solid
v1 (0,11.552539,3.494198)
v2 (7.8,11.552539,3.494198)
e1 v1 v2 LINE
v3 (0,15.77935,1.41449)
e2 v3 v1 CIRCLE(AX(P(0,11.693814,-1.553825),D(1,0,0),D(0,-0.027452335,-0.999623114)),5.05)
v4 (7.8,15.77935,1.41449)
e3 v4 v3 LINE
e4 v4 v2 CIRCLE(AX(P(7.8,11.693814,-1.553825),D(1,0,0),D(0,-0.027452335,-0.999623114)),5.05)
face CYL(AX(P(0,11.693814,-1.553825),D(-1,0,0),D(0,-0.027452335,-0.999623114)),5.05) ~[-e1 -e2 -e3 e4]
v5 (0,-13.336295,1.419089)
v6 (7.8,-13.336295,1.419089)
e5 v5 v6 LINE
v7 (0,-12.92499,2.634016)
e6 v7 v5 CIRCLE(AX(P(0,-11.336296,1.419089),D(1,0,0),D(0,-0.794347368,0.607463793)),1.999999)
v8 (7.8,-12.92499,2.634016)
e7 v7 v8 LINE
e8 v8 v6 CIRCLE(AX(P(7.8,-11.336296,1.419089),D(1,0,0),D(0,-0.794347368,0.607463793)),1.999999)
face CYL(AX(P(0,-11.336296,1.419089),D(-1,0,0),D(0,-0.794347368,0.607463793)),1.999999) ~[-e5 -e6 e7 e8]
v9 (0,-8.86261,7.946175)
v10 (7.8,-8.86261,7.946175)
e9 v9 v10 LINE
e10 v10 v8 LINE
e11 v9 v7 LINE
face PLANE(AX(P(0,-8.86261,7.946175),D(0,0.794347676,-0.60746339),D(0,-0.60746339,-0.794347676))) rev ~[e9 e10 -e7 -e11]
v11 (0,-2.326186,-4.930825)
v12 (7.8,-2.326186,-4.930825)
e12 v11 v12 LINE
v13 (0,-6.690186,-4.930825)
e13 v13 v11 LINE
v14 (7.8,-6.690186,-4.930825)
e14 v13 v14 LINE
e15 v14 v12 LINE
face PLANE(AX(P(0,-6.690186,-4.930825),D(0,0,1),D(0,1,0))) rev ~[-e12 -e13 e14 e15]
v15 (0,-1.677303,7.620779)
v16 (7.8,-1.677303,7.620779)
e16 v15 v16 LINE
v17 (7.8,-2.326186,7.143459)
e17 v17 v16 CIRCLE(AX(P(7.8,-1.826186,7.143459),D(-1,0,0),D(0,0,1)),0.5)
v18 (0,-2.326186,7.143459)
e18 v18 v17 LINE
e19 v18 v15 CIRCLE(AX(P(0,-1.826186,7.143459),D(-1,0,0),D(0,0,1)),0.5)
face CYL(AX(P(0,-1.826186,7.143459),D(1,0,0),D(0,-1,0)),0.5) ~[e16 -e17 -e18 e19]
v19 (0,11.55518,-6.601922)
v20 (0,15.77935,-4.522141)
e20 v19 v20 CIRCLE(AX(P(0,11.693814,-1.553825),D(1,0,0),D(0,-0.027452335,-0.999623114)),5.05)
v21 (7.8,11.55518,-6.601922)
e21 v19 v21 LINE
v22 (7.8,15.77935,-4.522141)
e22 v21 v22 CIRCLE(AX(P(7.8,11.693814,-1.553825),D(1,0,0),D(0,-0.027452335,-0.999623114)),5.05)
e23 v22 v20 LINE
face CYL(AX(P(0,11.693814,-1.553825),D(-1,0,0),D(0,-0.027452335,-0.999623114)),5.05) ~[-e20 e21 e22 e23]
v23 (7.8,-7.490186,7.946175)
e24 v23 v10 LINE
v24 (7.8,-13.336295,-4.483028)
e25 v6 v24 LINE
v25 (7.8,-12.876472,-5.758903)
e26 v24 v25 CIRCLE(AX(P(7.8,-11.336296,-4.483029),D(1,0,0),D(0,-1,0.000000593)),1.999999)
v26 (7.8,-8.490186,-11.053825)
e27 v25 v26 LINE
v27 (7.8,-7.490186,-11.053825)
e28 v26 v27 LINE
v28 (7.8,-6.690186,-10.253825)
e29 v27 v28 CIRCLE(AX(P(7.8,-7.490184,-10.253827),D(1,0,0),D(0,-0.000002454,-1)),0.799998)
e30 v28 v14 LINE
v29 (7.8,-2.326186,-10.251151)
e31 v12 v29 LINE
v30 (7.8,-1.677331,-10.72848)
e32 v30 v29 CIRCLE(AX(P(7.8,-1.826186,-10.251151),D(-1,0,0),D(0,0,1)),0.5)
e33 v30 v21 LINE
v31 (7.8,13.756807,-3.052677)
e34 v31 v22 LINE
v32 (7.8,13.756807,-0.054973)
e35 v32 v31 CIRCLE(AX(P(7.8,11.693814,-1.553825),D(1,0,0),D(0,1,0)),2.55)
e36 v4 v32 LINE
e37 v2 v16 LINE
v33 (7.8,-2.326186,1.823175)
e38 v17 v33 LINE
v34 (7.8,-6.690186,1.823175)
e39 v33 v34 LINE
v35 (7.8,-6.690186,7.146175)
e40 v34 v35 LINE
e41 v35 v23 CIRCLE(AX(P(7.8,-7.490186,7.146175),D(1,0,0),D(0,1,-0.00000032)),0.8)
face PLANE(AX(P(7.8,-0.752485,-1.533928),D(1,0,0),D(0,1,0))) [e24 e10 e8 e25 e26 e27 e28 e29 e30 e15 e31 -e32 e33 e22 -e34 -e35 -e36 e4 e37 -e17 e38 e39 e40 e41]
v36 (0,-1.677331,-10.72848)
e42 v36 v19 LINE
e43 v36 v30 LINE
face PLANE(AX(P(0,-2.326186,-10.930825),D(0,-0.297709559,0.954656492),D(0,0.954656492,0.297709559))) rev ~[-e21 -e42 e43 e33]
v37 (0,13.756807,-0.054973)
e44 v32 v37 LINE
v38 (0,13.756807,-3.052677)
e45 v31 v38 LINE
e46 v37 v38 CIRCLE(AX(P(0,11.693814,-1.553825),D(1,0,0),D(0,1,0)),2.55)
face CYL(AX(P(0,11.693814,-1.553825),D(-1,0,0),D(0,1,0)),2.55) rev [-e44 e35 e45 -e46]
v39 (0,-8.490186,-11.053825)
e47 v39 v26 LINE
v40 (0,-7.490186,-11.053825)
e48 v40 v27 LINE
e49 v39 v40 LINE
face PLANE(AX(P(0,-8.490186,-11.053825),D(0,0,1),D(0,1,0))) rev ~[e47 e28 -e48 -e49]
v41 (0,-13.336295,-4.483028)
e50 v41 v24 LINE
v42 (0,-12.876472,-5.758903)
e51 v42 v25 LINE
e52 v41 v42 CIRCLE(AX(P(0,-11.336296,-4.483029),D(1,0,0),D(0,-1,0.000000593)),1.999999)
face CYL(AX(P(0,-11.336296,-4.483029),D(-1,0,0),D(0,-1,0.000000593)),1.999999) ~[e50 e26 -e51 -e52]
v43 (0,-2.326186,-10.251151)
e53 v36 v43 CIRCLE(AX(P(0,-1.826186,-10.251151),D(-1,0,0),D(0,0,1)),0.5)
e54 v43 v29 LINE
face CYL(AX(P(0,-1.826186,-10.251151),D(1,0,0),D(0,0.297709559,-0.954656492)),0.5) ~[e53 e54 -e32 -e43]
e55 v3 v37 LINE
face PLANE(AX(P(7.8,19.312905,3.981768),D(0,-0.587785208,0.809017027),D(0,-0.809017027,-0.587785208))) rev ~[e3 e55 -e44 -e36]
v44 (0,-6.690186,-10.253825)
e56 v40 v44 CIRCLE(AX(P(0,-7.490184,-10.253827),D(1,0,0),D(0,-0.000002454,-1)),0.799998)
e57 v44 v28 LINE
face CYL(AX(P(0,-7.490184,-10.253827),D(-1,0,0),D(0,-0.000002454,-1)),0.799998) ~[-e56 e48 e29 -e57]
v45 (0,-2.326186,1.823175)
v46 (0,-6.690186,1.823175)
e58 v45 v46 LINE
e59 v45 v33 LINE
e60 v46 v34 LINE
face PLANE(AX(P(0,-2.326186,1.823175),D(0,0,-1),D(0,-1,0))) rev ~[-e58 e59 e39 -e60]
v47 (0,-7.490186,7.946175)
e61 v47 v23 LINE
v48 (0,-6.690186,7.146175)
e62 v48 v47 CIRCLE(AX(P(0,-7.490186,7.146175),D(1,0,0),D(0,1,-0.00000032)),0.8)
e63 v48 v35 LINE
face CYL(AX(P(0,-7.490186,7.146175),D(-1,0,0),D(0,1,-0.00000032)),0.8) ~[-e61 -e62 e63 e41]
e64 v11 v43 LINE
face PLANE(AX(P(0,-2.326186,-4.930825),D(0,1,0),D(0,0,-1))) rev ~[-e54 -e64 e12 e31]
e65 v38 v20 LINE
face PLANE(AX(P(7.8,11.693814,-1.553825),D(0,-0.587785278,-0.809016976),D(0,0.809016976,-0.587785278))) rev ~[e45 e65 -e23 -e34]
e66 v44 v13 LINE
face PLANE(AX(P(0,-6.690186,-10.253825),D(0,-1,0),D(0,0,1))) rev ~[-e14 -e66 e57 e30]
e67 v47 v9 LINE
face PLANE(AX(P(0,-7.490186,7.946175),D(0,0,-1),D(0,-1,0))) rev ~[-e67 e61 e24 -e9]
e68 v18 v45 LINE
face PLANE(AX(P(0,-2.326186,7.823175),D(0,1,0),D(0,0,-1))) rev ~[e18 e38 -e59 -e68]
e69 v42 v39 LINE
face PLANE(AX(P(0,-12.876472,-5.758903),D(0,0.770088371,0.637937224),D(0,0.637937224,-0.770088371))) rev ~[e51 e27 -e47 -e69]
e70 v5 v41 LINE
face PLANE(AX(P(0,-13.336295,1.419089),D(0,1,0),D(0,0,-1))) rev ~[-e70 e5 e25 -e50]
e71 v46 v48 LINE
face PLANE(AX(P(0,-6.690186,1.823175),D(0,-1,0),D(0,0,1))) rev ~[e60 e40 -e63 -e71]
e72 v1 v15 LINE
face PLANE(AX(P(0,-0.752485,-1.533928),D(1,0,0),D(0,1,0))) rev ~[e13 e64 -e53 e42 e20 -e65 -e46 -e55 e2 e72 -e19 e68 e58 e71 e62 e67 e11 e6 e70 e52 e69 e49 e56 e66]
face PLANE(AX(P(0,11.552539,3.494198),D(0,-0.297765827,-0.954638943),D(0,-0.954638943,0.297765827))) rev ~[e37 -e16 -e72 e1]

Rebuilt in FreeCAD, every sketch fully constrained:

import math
import FreeCAD as App
import Part
import Sketcher
from FreeCAD import Vector
Q = App.Units.Quantity


def edges_at(feature, points):
    """Names of the edges that pass closest to the given points."""
    edges = feature.Shape.Edges
    near = lambda p: min(range(len(edges)), key=lambda i: edges[i].distToShape(Part.Vertex(*p))[0])
    return sorted({f"Edge{near(p) + 1}" for p in points})

doc = App.newDocument("Part")
params = doc.addObject("Spreadsheet::Sheet", "Params")
for row, (alias, value) in enumerate([
    ("sketch1_radius", "1.999999 mm"),
    ("sketch1_diameter", "5.1 mm"),
    ("sketch1_radius2", "0.8 mm"),
    ("sketch1_width", "1 mm"),
    ("sketch1_height", "6 mm"),
    ("pad1_length", "7.8 mm"),
    ("fillet_radius", "0.5 mm"),
    ("pocket1_length", "25 mm"),
], start=1):
    params.set(f"A{row}", alias)
    params.set(f"B{row}", "=" + value)
    params.setAlias(f"B{row}", alias)

body = doc.addObject("PartDesign::Body", "Body")

# Sketch on YZ plane
sketch1 = body.newObject("Sketcher::SketchObject", "Sketch")
sketch1.AttachmentSupport = (doc.getObject("YZ_Plane"), [""])
sketch1.MapMode = "FlatFace"
sketch1.addGeometry(Part.LineSegment(Vector(-2.326186, 7.823175, 0), Vector(-2.326186, 1.823175, 0)), False)
sketch1.addGeometry(Part.LineSegment(Vector(-2.326186, 1.823175, 0), Vector(-6.690186, 1.823175, 0)), False)
sketch1.addGeometry(Part.LineSegment(Vector(-6.690186, 1.823175, 0), Vector(-6.690186, 7.146175, 0)), False)
sketch1.addGeometry(Part.ArcOfCircle(Part.Circle(Vector(-7.490186, 7.146175, 0), Vector(0, 0, 1), 0.8), math.radians(-0.000018), math.radians(90.000018)), False)
sketch1.addGeometry(Part.LineSegment(Vector(-7.490186, 7.946175, 0), Vector(-8.86261, 7.946175, 0)), False)
sketch1.addGeometry(Part.LineSegment(Vector(-8.86261, 7.946175, 0), Vector(-12.92499, 2.634016, 0)), False)
sketch1.addGeometry(Part.ArcOfCircle(Part.Circle(Vector(-11.336296, 1.419089, 0), Vector(0, 0, 1), 1.999999), math.radians(142.593656), math.radians(180.000006)), False)
sketch1.addGeometry(Part.LineSegment(Vector(-13.336295, 1.419089, 0), Vector(-13.336295, -4.483028, 0)), False)
sketch1.addGeometry(Part.ArcOfCircle(Part.Circle(Vector(-11.336296, -4.483029, 0), Vector(0, 0, 1), 1.999999), math.radians(179.999966), math.radians(219.638172)), False)
sketch1.addGeometry(Part.LineSegment(Vector(-12.876472, -5.758903, 0), Vector(-8.490186, -11.053825, 0)), False)
sketch1.addGeometry(Part.LineSegment(Vector(-8.490186, -11.053825, 0), Vector(-7.490186, -11.053825, 0)), False)
sketch1.addGeometry(Part.ArcOfCircle(Part.Circle(Vector(-7.490184, -10.253827, 0), Vector(0, 0, 1), 0.799998), math.radians(-90.000141), math.radians(0.000141)), False)
sketch1.addGeometry(Part.LineSegment(Vector(-6.690186, -10.253825, 0), Vector(-6.690186, -4.930825, 0)), False)
sketch1.addGeometry(Part.LineSegment(Vector(-6.690186, -4.930825, 0), Vector(-2.326186, -4.930825, 0)), False)
sketch1.addGeometry(Part.LineSegment(Vector(-2.326186, -4.930825, 0), Vector(-2.326186, -10.930825, 0)), False)
sketch1.addGeometry(Part.LineSegment(Vector(-2.326186, -10.930825, 0), Vector(11.55518, -6.601922, 0)), False)
sketch1.addGeometry(Part.ArcOfCircle(Part.Circle(Vector(11.693814, -1.553825, 0), Vector(0, 0, 1), 5.05), math.radians(-91.573101), math.radians(91.603076)), False)
sketch1.addGeometry(Part.LineSegment(Vector(11.552539, 3.494198, 0), Vector(-2.326186, 7.823175, 0)), False)
sketch1.addGeometry(Part.Circle(Vector(11.693814, -1.553825, 0), Vector(0, 0, 1), 2.55), False)
sketch1.addConstraint(Sketcher.Constraint("Coincident", 0, 2, 1, 1))
sketch1.addConstraint(Sketcher.Constraint("Coincident", 1, 2, 2, 1))
sketch1.addConstraint(Sketcher.Constraint("Tangent", 2, 2, 3, 1))
sketch1.addConstraint(Sketcher.Constraint("Tangent", 3, 2, 4, 1))
sketch1.addConstraint(Sketcher.Constraint("Coincident", 4, 2, 5, 1))
sketch1.addConstraint(Sketcher.Constraint("Tangent", 5, 2, 6, 1))
sketch1.addConstraint(Sketcher.Constraint("Tangent", 6, 2, 7, 1))
sketch1.addConstraint(Sketcher.Constraint("Tangent", 7, 2, 8, 1))
sketch1.addConstraint(Sketcher.Constraint("Tangent", 8, 2, 9, 1))
sketch1.addConstraint(Sketcher.Constraint("Coincident", 9, 2, 10, 1))
sketch1.addConstraint(Sketcher.Constraint("Coincident", 10, 2, 11, 1))
sketch1.addConstraint(Sketcher.Constraint("Coincident", 11, 2, 12, 1))
sketch1.addConstraint(Sketcher.Constraint("Coincident", 12, 2, 13, 1))
sketch1.addConstraint(Sketcher.Constraint("Coincident", 13, 2, 14, 1))
sketch1.addConstraint(Sketcher.Constraint("Coincident", 14, 2, 15, 1))
sketch1.addConstraint(Sketcher.Constraint("Coincident", 15, 2, 16, 1))
sketch1.addConstraint(Sketcher.Constraint("Coincident", 16, 2, 17, 1))
sketch1.addConstraint(Sketcher.Constraint("Coincident", 17, 2, 0, 1))
sketch1.addConstraint(Sketcher.Constraint("Vertical", 0))
sketch1.addConstraint(Sketcher.Constraint("Horizontal", 1))
sketch1.addConstraint(Sketcher.Constraint("Vertical", 2))
sketch1.addConstraint(Sketcher.Constraint("Horizontal", 4))
sketch1.addConstraint(Sketcher.Constraint("Vertical", 7))
sketch1.addConstraint(Sketcher.Constraint("Horizontal", 10))
sketch1.addConstraint(Sketcher.Constraint("Vertical", 12))
sketch1.addConstraint(Sketcher.Constraint("Horizontal", 13))
sketch1.addConstraint(Sketcher.Constraint("Vertical", 14))
sketch1.addConstraint(Sketcher.Constraint("Coincident", 18, 3, 16, 3))
sketch1.addConstraint(Sketcher.Constraint("Equal", 6, 8))
sketch1.addConstraint(Sketcher.Constraint("Equal", 3, 11))
sketch1.addConstraint(Sketcher.Constraint("Vertical", 3, 3, 11, 3))
sketch1.addConstraint(Sketcher.Constraint("Vertical", 3, 2, 10, 2))
sketch1.addConstraint(Sketcher.Constraint("Vertical", 0, 2, 13, 2))
sketch1.addConstraint(Sketcher.Constraint("Equal", 2, 12))
sketch1.addConstraint(Sketcher.Constraint("Equal", 0, 14))
sketch1.addConstraint(Sketcher.Constraint("Radius", 6, 1.999999))
sketch1.addConstraint(Sketcher.Constraint("Diameter", 18, 5.1))
sketch1.addConstraint(Sketcher.Constraint("Radius", 3, 0.8))
sketch1.addConstraint(Sketcher.Constraint("DistanceX", 10, 1, 10, 2, 1.0))
sketch1.addConstraint(Sketcher.Constraint("DistanceY", 0, 2, 0, 1, 6.0))
sketch1.addConstraint(Sketcher.Constraint("Radius", 16, 5.05))
sketch1.addConstraint(Sketcher.Constraint("DistanceY", 11, 3, 16, 3, 8.700002))
sketch1.addConstraint(Sketcher.Constraint("DistanceY", 16, 3, 3, 3, 8.700001))
sketch1.addConstraint(Sketcher.Constraint("DistanceY", 10, 2, 11, 2, 0.8))
sketch1.addConstraint(Sketcher.Constraint("DistanceX", 1, 2, 1, 1, 4.364))
sketch1.addConstraint(Sketcher.Constraint("DistanceY", 2, 1, 2, 2, 5.323))
sketch1.addConstraint(Sketcher.Constraint("DistanceX", 0, 2, 18, 3, 14.02))
sketch1.addConstraint(Sketcher.Constraint("DistanceY", 11, 3, 7, 2, 5.770799))
sketch1.addConstraint(Sketcher.Constraint("Distance", 5, 6.687448))
sketch1.addConstraint(Sketcher.Constraint("Distance", 15, 14.540692))
sketch1.addConstraint(Sketcher.Constraint("DistanceX", 4, 2, 4, 1, 1.372424))
sketch1.addConstraint(Sketcher.Constraint("DistanceY", 7, 2, 7, 1, 5.902117))
sketch1.addConstraint(Sketcher.Constraint("DistanceY", -1, 1, 6, 3, 1.419089))
sketch1.addConstraint(Sketcher.Constraint("DistanceX", 4, 2, -1, 1, 8.86261))
sketch1.addConstraint(Sketcher.Constraint("DistanceX", -1, 1, 16, 2, 11.552539))
sketch1.setExpression("Constraints[35]", "Params.sketch1_radius")
sketch1.setExpression("Constraints[36]", "Params.sketch1_diameter")
sketch1.setExpression("Constraints[37]", "Params.sketch1_radius2")
sketch1.setExpression("Constraints[38]", "Params.sketch1_width")
sketch1.setExpression("Constraints[39]", "Params.sketch1_height")
pad1 = body.newObject("PartDesign::Pad", "Pad")
pad1.Profile = sketch1
pad1.setExpression("Length", "Params.pad1_length")
doc.recompute()

fillet = body.newObject("PartDesign::Fillet", "Fillet")
fillet.Base = (pad1, edges_at(pad1, [(3.9, -2.326, 7.823), (3.9, -2.326, -10.931)]))
fillet.setExpression("Radius", "Params.fillet_radius")

# Sketch on YZ plane
sketch2 = body.newObject("Sketcher::SketchObject", "Sketch001")
sketch2.AttachmentSupport = (doc.getObject("YZ_Plane"), [""])
sketch2.MapMode = "FlatFace"
sketch2.AttachmentOffset = App.Placement(Vector(0, 0, 7.8), App.Rotation())
sketch2.addGeometry(Part.LineSegment(Vector(19.312905, 3.981768, 0), Vector(11.693814, -1.553825, 0)), False)
sketch2.addGeometry(Part.LineSegment(Vector(11.693814, -1.553825, 0), Vector(19.312905, -7.089419, 0)), False)
sketch2.addGeometry(Part.LineSegment(Vector(19.312905, -7.089419, 0), Vector(19.312905, 3.981768, 0)), False)
sketch2.addConstraint(Sketcher.Constraint("Coincident", 0, 2, 1, 1))
sketch2.addConstraint(Sketcher.Constraint("Coincident", 1, 2, 2, 1))
sketch2.addConstraint(Sketcher.Constraint("Coincident", 2, 2, 0, 1))
sketch2.addConstraint(Sketcher.Constraint("Vertical", 2))
sketch2.addConstraint(Sketcher.Constraint("Equal", 0, 1))
sketch2.addConstraint(Sketcher.Constraint("Angle", 0, Q("-144.000003 deg")))
sketch2.addConstraint(Sketcher.Constraint("DistanceY", 2, 1, 2, 2, 11.071187))
sketch2.addConstraint(Sketcher.Constraint("DistanceY", 1, 2, -1, 1, 7.089419))
sketch2.addConstraint(Sketcher.Constraint("DistanceX", -1, 1, 0, 2, 11.693814))
pocket1 = body.newObject("PartDesign::Pocket", "Pocket")
pocket1.Profile = sketch2
pocket1.setExpression("Length", "Params.pocket1_length")

doc.recompute()
